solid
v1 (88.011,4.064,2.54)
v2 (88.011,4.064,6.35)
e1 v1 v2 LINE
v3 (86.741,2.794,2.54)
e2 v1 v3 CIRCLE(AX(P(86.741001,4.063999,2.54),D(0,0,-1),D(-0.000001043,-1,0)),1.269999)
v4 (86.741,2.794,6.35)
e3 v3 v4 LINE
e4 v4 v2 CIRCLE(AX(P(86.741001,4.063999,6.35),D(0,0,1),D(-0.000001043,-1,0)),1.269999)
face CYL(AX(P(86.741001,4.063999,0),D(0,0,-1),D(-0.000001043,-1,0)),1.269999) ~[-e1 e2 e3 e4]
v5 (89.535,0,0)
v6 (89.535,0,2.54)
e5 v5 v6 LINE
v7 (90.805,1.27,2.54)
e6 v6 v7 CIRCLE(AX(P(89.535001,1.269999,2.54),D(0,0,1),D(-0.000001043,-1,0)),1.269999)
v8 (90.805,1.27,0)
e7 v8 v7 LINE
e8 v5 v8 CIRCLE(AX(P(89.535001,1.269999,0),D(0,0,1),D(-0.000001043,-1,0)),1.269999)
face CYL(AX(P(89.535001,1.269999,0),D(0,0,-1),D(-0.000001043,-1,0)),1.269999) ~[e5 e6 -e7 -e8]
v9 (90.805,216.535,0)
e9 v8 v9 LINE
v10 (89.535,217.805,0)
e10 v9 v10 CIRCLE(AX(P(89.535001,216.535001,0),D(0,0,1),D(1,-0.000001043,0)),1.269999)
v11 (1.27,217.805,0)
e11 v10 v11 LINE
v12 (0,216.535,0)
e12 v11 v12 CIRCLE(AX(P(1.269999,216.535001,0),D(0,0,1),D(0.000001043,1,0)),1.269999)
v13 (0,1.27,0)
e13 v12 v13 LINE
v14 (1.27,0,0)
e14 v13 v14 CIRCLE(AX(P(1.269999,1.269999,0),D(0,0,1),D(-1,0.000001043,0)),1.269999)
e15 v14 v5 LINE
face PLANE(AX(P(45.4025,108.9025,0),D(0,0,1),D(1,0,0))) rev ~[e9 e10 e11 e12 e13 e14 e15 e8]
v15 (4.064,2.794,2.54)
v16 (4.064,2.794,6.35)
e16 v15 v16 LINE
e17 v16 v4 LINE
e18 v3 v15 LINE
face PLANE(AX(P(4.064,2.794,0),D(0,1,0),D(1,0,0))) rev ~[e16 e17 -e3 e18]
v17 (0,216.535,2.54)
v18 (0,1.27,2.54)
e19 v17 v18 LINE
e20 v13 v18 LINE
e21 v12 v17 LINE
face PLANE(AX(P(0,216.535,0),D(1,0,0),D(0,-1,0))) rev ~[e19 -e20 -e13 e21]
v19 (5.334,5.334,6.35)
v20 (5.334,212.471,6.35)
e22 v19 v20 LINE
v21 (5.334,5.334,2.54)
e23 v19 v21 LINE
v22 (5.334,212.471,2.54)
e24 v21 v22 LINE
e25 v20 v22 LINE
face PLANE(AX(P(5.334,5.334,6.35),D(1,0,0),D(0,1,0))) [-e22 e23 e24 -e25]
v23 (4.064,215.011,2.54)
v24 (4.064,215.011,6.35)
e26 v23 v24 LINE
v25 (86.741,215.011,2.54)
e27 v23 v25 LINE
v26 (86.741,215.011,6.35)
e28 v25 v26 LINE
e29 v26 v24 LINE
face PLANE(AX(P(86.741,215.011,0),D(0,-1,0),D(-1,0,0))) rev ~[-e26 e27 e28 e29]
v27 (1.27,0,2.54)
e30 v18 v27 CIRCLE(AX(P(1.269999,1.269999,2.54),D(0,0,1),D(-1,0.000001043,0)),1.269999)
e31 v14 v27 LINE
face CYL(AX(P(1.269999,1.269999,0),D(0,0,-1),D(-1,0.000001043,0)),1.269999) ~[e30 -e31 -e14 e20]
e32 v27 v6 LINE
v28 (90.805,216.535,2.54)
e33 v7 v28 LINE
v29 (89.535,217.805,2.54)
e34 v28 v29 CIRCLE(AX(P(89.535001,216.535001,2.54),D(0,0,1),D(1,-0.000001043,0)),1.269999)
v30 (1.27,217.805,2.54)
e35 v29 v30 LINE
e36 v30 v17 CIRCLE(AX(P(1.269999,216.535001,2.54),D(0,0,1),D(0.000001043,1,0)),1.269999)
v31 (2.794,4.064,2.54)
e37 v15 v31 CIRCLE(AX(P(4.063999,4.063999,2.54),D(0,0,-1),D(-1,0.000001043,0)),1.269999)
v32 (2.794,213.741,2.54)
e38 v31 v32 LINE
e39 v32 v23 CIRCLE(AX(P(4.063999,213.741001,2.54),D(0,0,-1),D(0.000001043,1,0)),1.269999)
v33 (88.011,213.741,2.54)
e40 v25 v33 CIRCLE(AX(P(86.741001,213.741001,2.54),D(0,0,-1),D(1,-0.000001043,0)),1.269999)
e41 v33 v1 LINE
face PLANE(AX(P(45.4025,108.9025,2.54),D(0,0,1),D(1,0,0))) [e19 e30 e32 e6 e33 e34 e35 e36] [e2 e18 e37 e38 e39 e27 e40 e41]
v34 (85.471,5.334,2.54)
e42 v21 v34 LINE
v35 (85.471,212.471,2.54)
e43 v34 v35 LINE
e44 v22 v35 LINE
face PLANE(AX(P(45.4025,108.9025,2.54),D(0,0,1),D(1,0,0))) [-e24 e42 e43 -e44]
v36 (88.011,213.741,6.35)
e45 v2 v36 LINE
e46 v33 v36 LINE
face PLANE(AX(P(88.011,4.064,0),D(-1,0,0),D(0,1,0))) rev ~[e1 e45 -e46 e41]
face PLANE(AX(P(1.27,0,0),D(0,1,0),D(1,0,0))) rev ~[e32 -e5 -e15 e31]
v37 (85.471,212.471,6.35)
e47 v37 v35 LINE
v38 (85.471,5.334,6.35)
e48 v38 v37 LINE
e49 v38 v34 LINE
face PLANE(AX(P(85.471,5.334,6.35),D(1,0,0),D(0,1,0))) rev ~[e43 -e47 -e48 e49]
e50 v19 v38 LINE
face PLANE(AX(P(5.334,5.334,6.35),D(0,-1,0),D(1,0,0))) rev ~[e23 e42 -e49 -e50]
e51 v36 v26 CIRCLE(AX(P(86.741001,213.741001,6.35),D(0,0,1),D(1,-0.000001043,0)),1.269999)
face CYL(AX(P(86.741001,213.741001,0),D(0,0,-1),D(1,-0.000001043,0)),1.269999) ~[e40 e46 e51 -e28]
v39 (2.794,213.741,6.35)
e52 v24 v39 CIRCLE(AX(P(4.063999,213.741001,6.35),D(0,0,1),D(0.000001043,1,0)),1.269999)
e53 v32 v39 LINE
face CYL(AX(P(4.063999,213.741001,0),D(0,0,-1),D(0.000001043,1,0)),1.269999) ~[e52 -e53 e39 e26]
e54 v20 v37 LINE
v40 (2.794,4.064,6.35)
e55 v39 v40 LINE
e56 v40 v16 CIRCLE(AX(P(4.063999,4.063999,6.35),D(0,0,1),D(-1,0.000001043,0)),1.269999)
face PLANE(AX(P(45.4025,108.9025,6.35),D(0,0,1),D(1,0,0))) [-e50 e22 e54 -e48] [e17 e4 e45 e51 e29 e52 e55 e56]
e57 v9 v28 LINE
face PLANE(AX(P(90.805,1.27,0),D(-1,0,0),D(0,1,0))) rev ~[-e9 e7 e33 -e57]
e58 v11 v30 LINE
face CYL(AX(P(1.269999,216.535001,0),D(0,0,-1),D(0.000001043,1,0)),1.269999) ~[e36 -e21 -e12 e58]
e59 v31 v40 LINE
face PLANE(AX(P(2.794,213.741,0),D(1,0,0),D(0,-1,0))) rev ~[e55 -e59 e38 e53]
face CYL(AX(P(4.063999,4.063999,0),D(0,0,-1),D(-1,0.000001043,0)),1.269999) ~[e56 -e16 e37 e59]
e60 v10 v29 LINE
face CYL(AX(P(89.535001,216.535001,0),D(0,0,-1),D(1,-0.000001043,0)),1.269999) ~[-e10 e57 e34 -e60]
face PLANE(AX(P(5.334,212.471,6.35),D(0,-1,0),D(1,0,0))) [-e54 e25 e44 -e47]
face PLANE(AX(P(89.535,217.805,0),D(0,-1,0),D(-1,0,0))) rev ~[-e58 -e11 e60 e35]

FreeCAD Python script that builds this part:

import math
import FreeCAD as App
import Part
import Sketcher

V = App.Vector
Q = App.Units.Quantity


def add_polygon(sketch, points):
    """Adds a closed chain of lines whose ends are joined by coincident constraints."""
    first, n = sketch.GeometryCount, len(points)
    for a, b in zip(points, points[1:] + points[:1]):
        sketch.addGeometry(Part.LineSegment(App.Vector(*a, 0), App.Vector(*b, 0)), False)
    for i in range(n):
        sketch.addConstraint(Sketcher.Constraint("Coincident", first + i, 2, first + (i + 1) % n, 1))

doc = App.newDocument("Part")
params = doc.addObject("Spreadsheet::Sheet", "Params")
for row, (alias, value) in enumerate([
    ("sketch1_radius", "0.0499999 in"),
    ("sketch1_width", "3.475 in"),
    ("sketch1_height", "8.475 in"),
    ("pad1_length", "0.1 in"),
    ("sketch2_radius", "0.0499999 in"),
    ("sketch2_width", "3.255 in"),
    ("sketch2_height", "8.255 in"),
    ("pad2_length", "0.25 in"),
    ("sketch3_width", "3.155 in"),
    ("sketch3_height", "8.155 in"),
    ("pocket1_length", "0.15 in"),
], start=1):
    params.set(f"A{row}", alias)
    params.set(f"B{row}", "=" + value)
    params.setAlias(f"B{row}", alias)

body = doc.addObject("PartDesign::Body", "Body")

sketch1 = doc.addObject("Sketcher::SketchObject", "Sketch")
body.addObject(sketch1)
sketch1.AttachmentSupport = (doc.XY_Plane, [""])
sketch1.MapMode = "FlatFace"
sketch1.addGeometry(Part.ArcOfCircle(Part.Circle(V(1.269999, 1.269999, 0), V(0, 0, 1), 1.269999), math.radians(179.99994), math.radians(270.00006)), False)
sketch1.addGeometry(Part.LineSegment(V(1.27, 0, 0), V(89.535, 0, 0)), False)
sketch1.addGeometry(Part.ArcOfCircle(Part.Circle(V(89.535001, 1.269999, 0), V(0, 0, 1), 1.269999), math.radians(-90.00006), math.radians(0.00006)), False)
sketch1.addGeometry(Part.LineSegment(V(90.805, 1.27, 0), V(90.805, 216.535, 0)), False)
sketch1.addGeometry(Part.ArcOfCircle(Part.Circle(V(89.535001, 216.535001, 0), V(0, 0, 1), 1.269999), math.radians(-0.00006), math.radians(90.00006)), False)
sketch1.addGeometry(Part.LineSegment(V(89.535, 217.805, 0), V(1.27, 217.805, 0)), False)
sketch1.addGeometry(Part.ArcOfCircle(Part.Circle(V(1.269999, 216.535001, 0), V(0, 0, 1), 1.269999), math.radians(89.99994), math.radians(180.00006)), False)
sketch1.addGeometry(Part.LineSegment(V(0, 216.535, 0), V(0, 1.27, 0)), False)
sketch1.addConstraint(Sketcher.Constraint("Tangent", 0, 2, 1, 1))
sketch1.addConstraint(Sketcher.Constraint("Tangent", 1, 2, 2, 1))
sketch1.addConstraint(Sketcher.Constraint("Tangent", 2, 2, 3, 1))
sketch1.addConstraint(Sketcher.Constraint("Tangent", 3, 2, 4, 1))
sketch1.addConstraint(Sketcher.Constraint("Tangent", 4, 2, 5, 1))
sketch1.addConstraint(Sketcher.Constraint("Tangent", 5, 2, 6, 1))
sketch1.addConstraint(Sketcher.Constraint("Tangent", 6, 2, 7, 1))
sketch1.addConstraint(Sketcher.Constraint("Tangent", 7, 2, 0, 1))
sketch1.addConstraint(Sketcher.Constraint("Horizontal", 1))
sketch1.addConstraint(Sketcher.Constraint("Vertical", 3))
sketch1.addConstraint(Sketcher.Constraint("Horizontal", 5))
sketch1.addConstraint(Sketcher.Constraint("Vertical", 7))
sketch1.addConstraint(Sketcher.Constraint("Equal", 0, 2))
sketch1.addConstraint(Sketcher.Constraint("Equal", 2, 4))
sketch1.addConstraint(Sketcher.Constraint("Equal", 4, 6))
sketch1.addConstraint(Sketcher.Constraint("PointOnObject", 0, 2, -1))
sketch1.addConstraint(Sketcher.Constraint("PointOnObject", 6, 2, -2))
sketch1.addConstraint(Sketcher.Constraint("Radius", 0, Q("0.0499999 in")))
sketch1.addConstraint(Sketcher.Constraint("DistanceX", 1, 1, 1, 2, Q("3.475 in")))
sketch1.addConstraint(Sketcher.Constraint("DistanceY", 3, 1, 3, 2, Q("8.475 in")))
sketch1.setExpression("Constraints[17]", "Params.sketch1_radius")
sketch1.setExpression("Constraints[18]", "Params.sketch1_width")
sketch1.setExpression("Constraints[19]", "Params.sketch1_height")
pad1 = doc.addObject("PartDesign::Pad", "Pad")
body.addObject(pad1)
pad1.Profile = sketch1
pad1.setExpression("Length", "Params.pad1_length")

sketch2 = doc.addObject("Sketcher::SketchObject", "Sketch001")
body.addObject(sketch2)
sketch2.AttachmentSupport = (doc.XY_Plane, [""])
sketch2.MapMode = "FlatFace"
sketch2.addGeometry(Part.LineSegment(V(2.794, 213.741, 0), V(2.794, 4.064, 0)), False)
sketch2.addGeometry(Part.ArcOfCircle(Part.Circle(V(4.063999, 4.063999, 0), V(0, 0, 1), 1.269999), math.radians(179.99994), math.radians(270.00006)), False)
sketch2.addGeometry(Part.LineSegment(V(4.064, 2.794, 0), V(86.741, 2.794, 0)), False)
sketch2.addGeometry(Part.ArcOfCircle(Part.Circle(V(86.741001, 4.063999, 0), V(0, 0, 1), 1.269999), math.radians(-90.00006), math.radians(0.00006)), False)
sketch2.addGeometry(Part.LineSegment(V(88.011, 4.064, 0), V(88.011, 213.741, 0)), False)
sketch2.addGeometry(Part.ArcOfCircle(Part.Circle(V(86.741001, 213.741001, 0), V(0, 0, 1), 1.269999), math.radians(-0.00006), math.radians(90.00006)), False)
sketch2.addGeometry(Part.LineSegment(V(86.741, 215.011, 0), V(4.064, 215.011, 0)), False)
sketch2.addGeometry(Part.ArcOfCircle(Part.Circle(V(4.063999, 213.741001, 0), V(0, 0, 1), 1.269999), math.radians(89.99994), math.radians(180.00006)), False)
sketch2.addConstraint(Sketcher.Constraint("Tangent", 0, 2, 1, 1))
sketch2.addConstraint(Sketcher.Constraint("Tangent", 1, 2, 2, 1))
sketch2.addConstraint(Sketcher.Constraint("Tangent", 2, 2, 3, 1))
sketch2.addConstraint(Sketcher.Constraint("Tangent", 3, 2, 4, 1))
sketch2.addConstraint(Sketcher.Constraint("Tangent", 4, 2, 5, 1))
sketch2.addConstraint(Sketcher.Constraint("Tangent", 5, 2, 6, 1))
sketch2.addConstraint(Sketcher.Constraint("Tangent", 6, 2, 7, 1))
sketch2.addConstraint(Sketcher.Constraint("Tangent", 7, 2, 0, 1))
sketch2.addConstraint(Sketcher.Constraint("Vertical", 0))
sketch2.addConstraint(Sketcher.Constraint("Horizontal", 2))
sketch2.addConstraint(Sketcher.Constraint("Vertical", 4))
sketch2.addConstraint(Sketcher.Constraint("Horizontal", 6))
sketch2.addConstraint(Sketcher.Constraint("Equal", 1, 3))
sketch2.addConstraint(Sketcher.Constraint("Equal", 3, 5))
sketch2.addConstraint(Sketcher.Constraint("Equal", 5, 7))
sketch2.addConstraint(Sketcher.Constraint("Radius", 1, Q("0.0499999 in")))
sketch2.addConstraint(Sketcher.Constraint("DistanceX", 2, 1, 2, 2, Q("3.255 in")))
sketch2.addConstraint(Sketcher.Constraint("DistanceY", 0, 2, 0, 1, Q("8.255 in")))
sketch2.addConstraint(Sketcher.Constraint("DistanceX", -1, 1, 1, 3, Q("0.1599999 in")))
sketch2.addConstraint(Sketcher.Constraint("DistanceY", -1, 1, 1, 3, Q("0.1599999 in")))
sketch2.setExpression("Constraints[15]", "Params.sketch2_radius")
sketch2.setExpression("Constraints[16]", "Params.sketch2_width")
sketch2.setExpression("Constraints[17]", "Params.sketch2_height")
pad2 = doc.addObject("PartDesign::Pad", "Pad001")
body.addObject(pad2)
pad2.Profile = sketch2
pad2.setExpression("Length", "Params.pad2_length")

sketch3 = doc.addObject("Sketcher::SketchObject", "Sketch002")
body.addObject(sketch3)
sketch3.AttachmentSupport = (doc.XY_Plane, [""])
sketch3.MapMode = "FlatFace"
sketch3.AttachmentOffset = App.Placement(V(0, 0, 0.25 * 25.4), App.Rotation())
add_polygon(sketch3, [(5.334, 212.471), (5.334, 5.334), (85.471, 5.334), (85.471, 212.471)])
sketch3.addConstraint(Sketcher.Constraint("Vertical", 0))
sketch3.addConstraint(Sketcher.Constraint("Horizontal", 1))
sketch3.addConstraint(Sketcher.Constraint("Vertical", 2))
sketch3.addConstraint(Sketcher.Constraint("Horizontal", 3))
sketch3.addConstraint(Sketcher.Constraint("DistanceX", 1, 1, 1, 2, Q("3.155 in")))
sketch3.addConstraint(Sketcher.Constraint("DistanceY", 0, 2, 0, 1, Q("8.155 in")))
sketch3.addConstraint(Sketcher.Constraint("DistanceX", -1, 1, 0, 2, Q("0.21 in")))
sketch3.addConstraint(Sketcher.Constraint("DistanceY", -1, 1, 0, 2, Q("0.21 in")))
sketch3.setExpression("Constraints[8]", "Params.sketch3_width")
sketch3.setExpression("Constraints[9]", "Params.sketch3_height")
pocket1 = doc.addObject("PartDesign::Pocket", "Pocket")
body.addObject(pocket1)
pocket1.Profile = sketch3
pocket1.setExpression("Length", "Params.pocket1_length")

doc.recompute()
